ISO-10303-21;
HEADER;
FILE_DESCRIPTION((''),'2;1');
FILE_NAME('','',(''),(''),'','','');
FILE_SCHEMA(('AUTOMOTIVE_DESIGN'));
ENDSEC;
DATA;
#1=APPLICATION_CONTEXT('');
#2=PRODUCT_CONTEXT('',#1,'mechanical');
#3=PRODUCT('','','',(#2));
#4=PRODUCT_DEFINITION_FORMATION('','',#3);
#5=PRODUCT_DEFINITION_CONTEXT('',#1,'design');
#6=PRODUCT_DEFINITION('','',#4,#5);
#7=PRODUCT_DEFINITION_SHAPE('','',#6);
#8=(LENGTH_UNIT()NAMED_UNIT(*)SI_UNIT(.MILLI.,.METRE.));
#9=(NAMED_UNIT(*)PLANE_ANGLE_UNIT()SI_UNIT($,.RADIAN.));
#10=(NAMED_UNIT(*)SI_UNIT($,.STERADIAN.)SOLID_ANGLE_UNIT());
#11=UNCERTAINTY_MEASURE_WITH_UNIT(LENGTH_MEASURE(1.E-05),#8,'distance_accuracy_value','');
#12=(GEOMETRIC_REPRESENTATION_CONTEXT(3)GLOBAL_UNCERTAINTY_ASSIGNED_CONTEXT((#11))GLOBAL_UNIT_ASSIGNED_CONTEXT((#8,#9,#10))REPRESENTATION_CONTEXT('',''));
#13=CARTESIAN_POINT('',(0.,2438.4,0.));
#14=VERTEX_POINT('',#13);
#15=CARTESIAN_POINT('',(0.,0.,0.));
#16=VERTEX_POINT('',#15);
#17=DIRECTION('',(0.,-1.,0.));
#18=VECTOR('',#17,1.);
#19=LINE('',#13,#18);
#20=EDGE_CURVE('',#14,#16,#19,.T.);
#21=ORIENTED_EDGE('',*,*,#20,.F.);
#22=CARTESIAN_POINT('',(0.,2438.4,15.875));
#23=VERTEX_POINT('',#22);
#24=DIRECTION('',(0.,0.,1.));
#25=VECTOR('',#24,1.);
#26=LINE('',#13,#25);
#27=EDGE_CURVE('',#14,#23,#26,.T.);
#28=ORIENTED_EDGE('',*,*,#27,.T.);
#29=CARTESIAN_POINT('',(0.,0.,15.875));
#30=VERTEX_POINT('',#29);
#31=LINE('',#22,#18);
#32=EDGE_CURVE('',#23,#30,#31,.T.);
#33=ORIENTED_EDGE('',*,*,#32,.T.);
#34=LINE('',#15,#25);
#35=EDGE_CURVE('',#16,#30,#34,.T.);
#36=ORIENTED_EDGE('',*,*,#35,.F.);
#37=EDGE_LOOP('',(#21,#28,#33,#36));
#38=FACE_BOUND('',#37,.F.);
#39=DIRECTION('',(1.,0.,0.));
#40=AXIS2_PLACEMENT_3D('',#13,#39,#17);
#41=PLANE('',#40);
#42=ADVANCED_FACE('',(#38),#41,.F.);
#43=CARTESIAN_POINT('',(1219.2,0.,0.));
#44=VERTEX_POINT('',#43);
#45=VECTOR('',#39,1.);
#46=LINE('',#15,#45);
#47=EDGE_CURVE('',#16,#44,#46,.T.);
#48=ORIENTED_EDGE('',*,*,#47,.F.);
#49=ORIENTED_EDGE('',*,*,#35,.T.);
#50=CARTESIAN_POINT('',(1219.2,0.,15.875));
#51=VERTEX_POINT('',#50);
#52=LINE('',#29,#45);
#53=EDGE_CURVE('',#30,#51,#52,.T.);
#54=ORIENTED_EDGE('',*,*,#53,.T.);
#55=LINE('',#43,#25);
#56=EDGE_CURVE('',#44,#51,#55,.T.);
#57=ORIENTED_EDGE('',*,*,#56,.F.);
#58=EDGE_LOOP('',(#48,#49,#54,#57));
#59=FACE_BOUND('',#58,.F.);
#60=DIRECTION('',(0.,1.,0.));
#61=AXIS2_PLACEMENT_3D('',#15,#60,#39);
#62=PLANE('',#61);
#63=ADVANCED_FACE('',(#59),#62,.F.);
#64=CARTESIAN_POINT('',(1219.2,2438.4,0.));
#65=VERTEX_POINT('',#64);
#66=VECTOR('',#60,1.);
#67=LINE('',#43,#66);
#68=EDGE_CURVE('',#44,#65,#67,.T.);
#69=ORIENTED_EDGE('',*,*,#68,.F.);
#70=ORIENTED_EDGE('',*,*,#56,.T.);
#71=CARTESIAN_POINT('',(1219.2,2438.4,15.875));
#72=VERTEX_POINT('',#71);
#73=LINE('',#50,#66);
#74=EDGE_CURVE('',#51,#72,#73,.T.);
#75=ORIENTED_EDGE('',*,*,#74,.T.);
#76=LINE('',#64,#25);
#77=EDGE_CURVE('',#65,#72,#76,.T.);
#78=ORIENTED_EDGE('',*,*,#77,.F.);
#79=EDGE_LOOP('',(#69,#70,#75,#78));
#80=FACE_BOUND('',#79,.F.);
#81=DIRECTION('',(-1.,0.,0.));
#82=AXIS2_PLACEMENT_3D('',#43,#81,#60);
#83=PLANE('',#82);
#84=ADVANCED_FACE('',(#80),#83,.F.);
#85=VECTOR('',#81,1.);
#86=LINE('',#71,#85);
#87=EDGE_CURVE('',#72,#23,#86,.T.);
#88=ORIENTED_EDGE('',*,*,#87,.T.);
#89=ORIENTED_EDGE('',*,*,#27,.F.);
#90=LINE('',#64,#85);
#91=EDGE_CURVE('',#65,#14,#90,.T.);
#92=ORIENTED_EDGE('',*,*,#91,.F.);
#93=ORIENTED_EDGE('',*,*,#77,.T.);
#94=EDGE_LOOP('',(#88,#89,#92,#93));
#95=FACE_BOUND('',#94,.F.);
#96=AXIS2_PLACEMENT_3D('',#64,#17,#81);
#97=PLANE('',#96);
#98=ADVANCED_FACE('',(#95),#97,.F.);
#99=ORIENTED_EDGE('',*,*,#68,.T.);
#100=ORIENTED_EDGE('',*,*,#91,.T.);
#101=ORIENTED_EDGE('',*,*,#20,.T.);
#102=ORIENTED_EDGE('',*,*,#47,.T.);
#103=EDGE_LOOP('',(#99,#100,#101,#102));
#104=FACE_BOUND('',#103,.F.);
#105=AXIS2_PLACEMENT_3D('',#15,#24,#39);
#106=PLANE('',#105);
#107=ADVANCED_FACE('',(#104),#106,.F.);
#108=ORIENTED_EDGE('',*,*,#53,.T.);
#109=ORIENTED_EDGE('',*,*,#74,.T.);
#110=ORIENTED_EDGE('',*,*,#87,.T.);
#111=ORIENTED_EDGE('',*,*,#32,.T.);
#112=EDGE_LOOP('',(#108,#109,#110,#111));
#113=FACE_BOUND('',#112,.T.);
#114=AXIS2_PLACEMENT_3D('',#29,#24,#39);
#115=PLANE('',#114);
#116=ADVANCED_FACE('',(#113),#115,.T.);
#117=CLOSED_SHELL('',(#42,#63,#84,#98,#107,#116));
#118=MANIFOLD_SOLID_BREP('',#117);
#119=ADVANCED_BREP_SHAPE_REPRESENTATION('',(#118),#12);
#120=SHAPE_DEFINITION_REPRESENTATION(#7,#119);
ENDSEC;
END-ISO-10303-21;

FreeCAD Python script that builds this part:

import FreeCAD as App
import Part
import Sketcher
from FreeCAD import Vector
Q = App.Units.Quantity


def add_polygon(sketch, points):
    """Adds a closed chain of lines whose ends are joined by coincident constraints."""
    first, n = sketch.GeometryCount, len(points)
    for a, b in zip(points, points[1:] + points[:1]):
        sketch.addGeometry(Part.LineSegment(App.Vector(*a, 0), App.Vector(*b, 0)), False)
    for i in range(n):
        sketch.addConstraint(Sketcher.Constraint("Coincident", first + i, 2, first + (i + 1) % n, 1))

doc = App.newDocument("Part")
params = doc.addObject("Spreadsheet::Sheet", "Params")
for row, (alias, value) in enumerate([
    ("sketch1_width", "48 in"),
    ("sketch1_height", "96 in"),
    ("pad1_length", "0.625 in"),
], start=1):
    params.set(f"A{row}", alias)
    params.set(f"B{row}", "=" + value)
    params.setAlias(f"B{row}", alias)

body = doc.addObject("PartDesign::Body", "Body")

sketch1 = body.newObject("Sketcher::SketchObject", "Sketch")
sketch1.AttachmentSupport = (doc.getObject("XY_Plane"), [""])
sketch1.MapMode = "FlatFace"
add_polygon(sketch1, [(0, 2438), (0, 0), (1219, 0), (1219, 2438)])
sketch1.addConstraint(Sketcher.Constraint("Vertical", 0))
sketch1.addConstraint(Sketcher.Constraint("Horizontal", 1))
sketch1.addConstraint(Sketcher.Constraint("Vertical", 2))
sketch1.addConstraint(Sketcher.Constraint("Horizontal", 3))
sketch1.addConstraint(Sketcher.Constraint("Coincident", 0, 2, -1, 1))
sketch1.addConstraint(Sketcher.Constraint("DistanceX", 1, 1, 1, 2, Q("48 in")))
sketch1.addConstraint(Sketcher.Constraint("DistanceY", 0, 2, 0, 1, Q("96 in")))
sketch1.setExpression("Constraints[9]", "Params.sketch1_width")
sketch1.setExpression("Constraints[10]", "Params.sketch1_height")
pad1 = body.newObject("PartDesign::Pad", "Pad")
pad1.Profile = sketch1
pad1.setExpression("Length", "Params.pad1_length")

doc.recompute()
